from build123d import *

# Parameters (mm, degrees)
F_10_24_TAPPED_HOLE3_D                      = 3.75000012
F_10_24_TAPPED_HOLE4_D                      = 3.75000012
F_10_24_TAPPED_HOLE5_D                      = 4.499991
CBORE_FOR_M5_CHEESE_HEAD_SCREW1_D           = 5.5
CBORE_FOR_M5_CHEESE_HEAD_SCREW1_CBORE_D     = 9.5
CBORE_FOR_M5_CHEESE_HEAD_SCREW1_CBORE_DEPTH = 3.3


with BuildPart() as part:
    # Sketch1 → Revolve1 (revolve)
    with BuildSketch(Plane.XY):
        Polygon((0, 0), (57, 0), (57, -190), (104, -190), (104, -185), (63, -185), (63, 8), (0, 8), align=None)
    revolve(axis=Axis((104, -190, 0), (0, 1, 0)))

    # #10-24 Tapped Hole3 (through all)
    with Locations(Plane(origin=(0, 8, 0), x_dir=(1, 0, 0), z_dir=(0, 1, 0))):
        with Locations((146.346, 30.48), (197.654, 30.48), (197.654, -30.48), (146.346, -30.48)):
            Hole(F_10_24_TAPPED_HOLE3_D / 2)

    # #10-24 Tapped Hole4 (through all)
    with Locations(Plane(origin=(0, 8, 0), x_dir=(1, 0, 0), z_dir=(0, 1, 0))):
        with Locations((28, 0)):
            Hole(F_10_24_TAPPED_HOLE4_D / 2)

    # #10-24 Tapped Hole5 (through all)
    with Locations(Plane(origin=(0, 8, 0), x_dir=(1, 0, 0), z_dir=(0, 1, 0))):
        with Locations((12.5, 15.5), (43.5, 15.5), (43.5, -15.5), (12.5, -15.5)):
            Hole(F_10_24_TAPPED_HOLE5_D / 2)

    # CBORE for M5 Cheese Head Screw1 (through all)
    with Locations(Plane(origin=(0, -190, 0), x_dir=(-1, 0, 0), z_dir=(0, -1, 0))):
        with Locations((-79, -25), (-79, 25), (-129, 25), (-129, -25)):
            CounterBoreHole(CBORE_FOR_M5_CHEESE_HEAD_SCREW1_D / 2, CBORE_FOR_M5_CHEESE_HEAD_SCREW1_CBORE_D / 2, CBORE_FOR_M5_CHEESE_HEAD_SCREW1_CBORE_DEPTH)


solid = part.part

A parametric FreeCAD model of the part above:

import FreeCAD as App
import Part
import Sketcher

V = App.Vector
Q = App.Units.Quantity


def add_polygon(sketch, points):
    """Adds a closed chain of lines whose ends are joined by coincident constraints."""
    first, n = sketch.GeometryCount, len(points)
    for a, b in zip(points, points[1:] + points[:1]):
        sketch.addGeometry(Part.LineSegment(App.Vector(*a, 0), App.Vector(*b, 0)), False)
    for i in range(n):
        sketch.addConstraint(Sketcher.Constraint("Coincident", first + i, 2, first + (i + 1) % n, 1))

doc = App.newDocument("Part")
body = doc.addObject("PartDesign::Body", "Body")

# Sketch on XY plane
sketch1 = body.newObject("Sketcher::SketchObject", "Sketch")
sketch1.AttachmentSupport = (doc.getObject("XY_Plane"), [""])
sketch1.MapMode = "FlatFace"
add_polygon(sketch1, [(0, 0), (57, 0), (57, -190), (104, -190), (104, -185), (63, -185), (63, 8), (0, 8)])  # lines 0-7
sketch1.addGeometry(Part.LineSegment(V(104, -190, 0), V(104, 8, 0)), True)  # axis
sketch1.addConstraint([
    Sketcher.Constraint("Horizontal", 0),
    Sketcher.Constraint("Vertical", 1),
    Sketcher.Constraint("Horizontal", 2),
    Sketcher.Constraint("Vertical", 3),
    Sketcher.Constraint("Horizontal", 4),
    Sketcher.Constraint("Vertical", 5),
    Sketcher.Constraint("Horizontal", 6),
    Sketcher.Constraint("Vertical", 7),
    Sketcher.Constraint("Vertical", 8),
    Sketcher.Constraint("Coincident", 7, 2, -1, 1),
    Sketcher.Constraint("Coincident", 8, 1, 2, 2),
    Sketcher.Constraint("Horizontal", 6, 2, 8, 2),
    Sketcher.Constraint("DistanceX", 0, 1, 0, 2, Q("57 mm")),
    Sketcher.Constraint("DistanceX", 2, 1, 2, 2, Q("47 mm")),
    Sketcher.Constraint("DistanceX", 4, 2, 4, 1, Q("41 mm")),
    Sketcher.Constraint("DistanceY", 1, 2, 1, 1, Q("190 mm")),
    Sketcher.Constraint("DistanceY", 3, 1, 3, 2, Q("5 mm")),
    Sketcher.Constraint("DistanceY", 5, 1, 5, 2, Q("193 mm")),
])
revolution = body.newObject("PartDesign::Revolution", "Revolution")
revolution.Profile = sketch1
revolution.ReferenceAxis = (sketch1, ["Axis0"])
revolution.Angle = 360

# Sketch on XZ plane
sketch2 = body.newObject("Sketcher::SketchObject", "Sketch001")
sketch2.AttachmentSupport = (doc.getObject("XZ_Plane"), [""])
sketch2.MapMode = "FlatFace"
sketch2.AttachmentOffset = App.Placement(V(0, 0, -8), App.Rotation())
sketch2.addGeometry([
    Part.Circle(V(146.3, -30.5, 0), V(0, 0, 1), 1.9),
    Part.Circle(V(197.7, -30.5, 0), V(0, 0, 1), 1.9),
    Part.Circle(V(197.7, 30.5, 0), V(0, 0, 1), 1.9),
    Part.Circle(V(146.3, 30.5, 0), V(0, 0, 1), 1.9),
], False)
sketch2.addConstraint([
    Sketcher.Constraint("Equal", 0, 1),
    Sketcher.Constraint("Equal", 1, 2),
    Sketcher.Constraint("Equal", 2, 3),
    Sketcher.Constraint("Symmetric", 1, 3, 2, 3, -1),
    Sketcher.Constraint("Symmetric", 0, 3, 3, 3, -1),
    Sketcher.Constraint("Horizontal", 0, 3, 1, 3),
    Sketcher.Constraint("Diameter", 0, Q("3.75 mm")),
    Sketcher.Constraint("DistanceY", 0, 3, -1, 1, Q("30.48 mm")),
    Sketcher.Constraint("DistanceX", -1, 1, 0, 3, Q("146.346 mm")),
    Sketcher.Constraint("DistanceX", -1, 1, 1, 3, Q("197.654 mm")),
])
doc.recompute()
hole = body.newObject("PartDesign::Hole", "Hole")
hole.Profile = sketch2
hole.ThreadType = "None"
hole.Diameter = 3.75
hole.DepthType = "ThroughAll"
hole.Reversed = True

# Sketch on XZ plane
sketch3 = body.newObject("Sketcher::SketchObject", "Sketch002")
sketch3.AttachmentSupport = (doc.getObject("XZ_Plane"), [""])
sketch3.MapMode = "FlatFace"
sketch3.AttachmentOffset = App.Placement(V(0, 0, -8), App.Rotation())
sketch3.addGeometry(Part.Circle(V(28, 0, 0), V(0, 0, 1), 1.9), False)
sketch3.addConstraint([
    Sketcher.Constraint("PointOnObject", 0, 3, -1),
    Sketcher.Constraint("Diameter", 0, Q("3.75 mm")),
    Sketcher.Constraint("DistanceX", -1, 1, 0, 3, Q("28 mm")),
])
doc.recompute()
hole2 = body.newObject("PartDesign::Hole", "Hole001")
hole2.Profile = sketch3
hole2.ThreadType = "None"
hole2.Diameter = 3.75
hole2.DepthType = "ThroughAll"
hole2.Reversed = True

# Sketch on XZ plane
sketch4 = body.newObject("Sketcher::SketchObject", "Sketch003")
sketch4.AttachmentSupport = (doc.getObject("XZ_Plane"), [""])
sketch4.MapMode = "FlatFace"
sketch4.AttachmentOffset = App.Placement(V(0, 0, -8), App.Rotation())
sketch4.addGeometry([
    Part.Circle(V(12.5, -15.5, 0), V(0, 0, 1), 2.2),
    Part.Circle(V(43.5, -15.5, 0), V(0, 0, 1), 2.2),
    Part.Circle(V(43.5, 15.5, 0), V(0, 0, 1), 2.2),
    Part.Circle(V(12.5, 15.5, 0), V(0, 0, 1), 2.2),
], False)
sketch4.addConstraint([
    Sketcher.Constraint("Equal", 0, 1),
    Sketcher.Constraint("Equal", 1, 2),
    Sketcher.Constraint("Equal", 2, 3),
    Sketcher.Constraint("Symmetric", 1, 3, 2, 3, -1),
    Sketcher.Constraint("Symmetric", 0, 3, 3, 3, -1),
    Sketcher.Constraint("Horizontal", 0, 3, 1, 3),
    Sketcher.Constraint("DistanceX", 0, 3, 1, 3, Q("31 mm")),
    Sketcher.Constraint("DistanceY", 1, 3, 2, 3, Q("31 mm")),
    Sketcher.Constraint("DistanceX", -1, 1, 0, 3, Q("12.5 mm")),
    Sketcher.Constraint("Diameter", 0, Q("4.499991 mm")),
])
doc.recompute()
hole3 = body.newObject("PartDesign::Hole", "Hole002")
hole3.Profile = sketch4
hole3.ThreadType = "None"
hole3.Diameter = 4.499991
hole3.DepthType = "ThroughAll"
hole3.Reversed = True

# Sketch on XZ plane
sketch5 = body.newObject("Sketcher::SketchObject", "Sketch004")
sketch5.AttachmentSupport = (doc.getObject("XZ_Plane"), [""])
sketch5.MapMode = "FlatFace"
sketch5.AttachmentOffset = App.Placement(V(0, 0, 190), App.Rotation())
sketch5.addGeometry([
    Part.Circle(V(79, 25, 0), V(0, 0, 1), 2.8),
    Part.Circle(V(79, -25, 0), V(0, 0, 1), 2.8),
    Part.Circle(V(129, -25, 0), V(0, 0, 1), 2.8),
    Part.Circle(V(129, 25, 0), V(0, 0, 1), 2.8),
], False)
sketch5.addConstraint([
    Sketcher.Constraint("Equal", 0, 1),
    Sketcher.Constraint("Equal", 1, 2),
    Sketcher.Constraint("Equal", 2, 3),
    Sketcher.Constraint("Symmetric", 0, 3, 1, 3, -1),
    Sketcher.Constraint("Symmetric", 2, 3, 3, 3, -1),
    Sketcher.Constraint("Horizontal", 1, 3, 2, 3),
    Sketcher.Constraint("Diameter", 0, Q("5.5 mm")),
    Sketcher.Constraint("DistanceX", -1, 1, 0, 3, Q("79 mm")),
    Sketcher.Constraint("DistanceY", -1, 1, 0, 3, Q("25 mm")),
    Sketcher.Constraint("DistanceX", -1, 1, 2, 3, Q("129 mm")),
])
doc.recompute()
hole4 = body.newObject("PartDesign::Hole", "Hole003")
hole4.Profile = sketch5
hole4.ThreadType = "None"
hole4.Diameter = 5.5
hole4.DepthType = "ThroughAll"
hole4.HoleCutType = "Counterbore"
hole4.HoleCutDiameter = 9.5
hole4.HoleCutDepth = 3.3

doc.recompute()
